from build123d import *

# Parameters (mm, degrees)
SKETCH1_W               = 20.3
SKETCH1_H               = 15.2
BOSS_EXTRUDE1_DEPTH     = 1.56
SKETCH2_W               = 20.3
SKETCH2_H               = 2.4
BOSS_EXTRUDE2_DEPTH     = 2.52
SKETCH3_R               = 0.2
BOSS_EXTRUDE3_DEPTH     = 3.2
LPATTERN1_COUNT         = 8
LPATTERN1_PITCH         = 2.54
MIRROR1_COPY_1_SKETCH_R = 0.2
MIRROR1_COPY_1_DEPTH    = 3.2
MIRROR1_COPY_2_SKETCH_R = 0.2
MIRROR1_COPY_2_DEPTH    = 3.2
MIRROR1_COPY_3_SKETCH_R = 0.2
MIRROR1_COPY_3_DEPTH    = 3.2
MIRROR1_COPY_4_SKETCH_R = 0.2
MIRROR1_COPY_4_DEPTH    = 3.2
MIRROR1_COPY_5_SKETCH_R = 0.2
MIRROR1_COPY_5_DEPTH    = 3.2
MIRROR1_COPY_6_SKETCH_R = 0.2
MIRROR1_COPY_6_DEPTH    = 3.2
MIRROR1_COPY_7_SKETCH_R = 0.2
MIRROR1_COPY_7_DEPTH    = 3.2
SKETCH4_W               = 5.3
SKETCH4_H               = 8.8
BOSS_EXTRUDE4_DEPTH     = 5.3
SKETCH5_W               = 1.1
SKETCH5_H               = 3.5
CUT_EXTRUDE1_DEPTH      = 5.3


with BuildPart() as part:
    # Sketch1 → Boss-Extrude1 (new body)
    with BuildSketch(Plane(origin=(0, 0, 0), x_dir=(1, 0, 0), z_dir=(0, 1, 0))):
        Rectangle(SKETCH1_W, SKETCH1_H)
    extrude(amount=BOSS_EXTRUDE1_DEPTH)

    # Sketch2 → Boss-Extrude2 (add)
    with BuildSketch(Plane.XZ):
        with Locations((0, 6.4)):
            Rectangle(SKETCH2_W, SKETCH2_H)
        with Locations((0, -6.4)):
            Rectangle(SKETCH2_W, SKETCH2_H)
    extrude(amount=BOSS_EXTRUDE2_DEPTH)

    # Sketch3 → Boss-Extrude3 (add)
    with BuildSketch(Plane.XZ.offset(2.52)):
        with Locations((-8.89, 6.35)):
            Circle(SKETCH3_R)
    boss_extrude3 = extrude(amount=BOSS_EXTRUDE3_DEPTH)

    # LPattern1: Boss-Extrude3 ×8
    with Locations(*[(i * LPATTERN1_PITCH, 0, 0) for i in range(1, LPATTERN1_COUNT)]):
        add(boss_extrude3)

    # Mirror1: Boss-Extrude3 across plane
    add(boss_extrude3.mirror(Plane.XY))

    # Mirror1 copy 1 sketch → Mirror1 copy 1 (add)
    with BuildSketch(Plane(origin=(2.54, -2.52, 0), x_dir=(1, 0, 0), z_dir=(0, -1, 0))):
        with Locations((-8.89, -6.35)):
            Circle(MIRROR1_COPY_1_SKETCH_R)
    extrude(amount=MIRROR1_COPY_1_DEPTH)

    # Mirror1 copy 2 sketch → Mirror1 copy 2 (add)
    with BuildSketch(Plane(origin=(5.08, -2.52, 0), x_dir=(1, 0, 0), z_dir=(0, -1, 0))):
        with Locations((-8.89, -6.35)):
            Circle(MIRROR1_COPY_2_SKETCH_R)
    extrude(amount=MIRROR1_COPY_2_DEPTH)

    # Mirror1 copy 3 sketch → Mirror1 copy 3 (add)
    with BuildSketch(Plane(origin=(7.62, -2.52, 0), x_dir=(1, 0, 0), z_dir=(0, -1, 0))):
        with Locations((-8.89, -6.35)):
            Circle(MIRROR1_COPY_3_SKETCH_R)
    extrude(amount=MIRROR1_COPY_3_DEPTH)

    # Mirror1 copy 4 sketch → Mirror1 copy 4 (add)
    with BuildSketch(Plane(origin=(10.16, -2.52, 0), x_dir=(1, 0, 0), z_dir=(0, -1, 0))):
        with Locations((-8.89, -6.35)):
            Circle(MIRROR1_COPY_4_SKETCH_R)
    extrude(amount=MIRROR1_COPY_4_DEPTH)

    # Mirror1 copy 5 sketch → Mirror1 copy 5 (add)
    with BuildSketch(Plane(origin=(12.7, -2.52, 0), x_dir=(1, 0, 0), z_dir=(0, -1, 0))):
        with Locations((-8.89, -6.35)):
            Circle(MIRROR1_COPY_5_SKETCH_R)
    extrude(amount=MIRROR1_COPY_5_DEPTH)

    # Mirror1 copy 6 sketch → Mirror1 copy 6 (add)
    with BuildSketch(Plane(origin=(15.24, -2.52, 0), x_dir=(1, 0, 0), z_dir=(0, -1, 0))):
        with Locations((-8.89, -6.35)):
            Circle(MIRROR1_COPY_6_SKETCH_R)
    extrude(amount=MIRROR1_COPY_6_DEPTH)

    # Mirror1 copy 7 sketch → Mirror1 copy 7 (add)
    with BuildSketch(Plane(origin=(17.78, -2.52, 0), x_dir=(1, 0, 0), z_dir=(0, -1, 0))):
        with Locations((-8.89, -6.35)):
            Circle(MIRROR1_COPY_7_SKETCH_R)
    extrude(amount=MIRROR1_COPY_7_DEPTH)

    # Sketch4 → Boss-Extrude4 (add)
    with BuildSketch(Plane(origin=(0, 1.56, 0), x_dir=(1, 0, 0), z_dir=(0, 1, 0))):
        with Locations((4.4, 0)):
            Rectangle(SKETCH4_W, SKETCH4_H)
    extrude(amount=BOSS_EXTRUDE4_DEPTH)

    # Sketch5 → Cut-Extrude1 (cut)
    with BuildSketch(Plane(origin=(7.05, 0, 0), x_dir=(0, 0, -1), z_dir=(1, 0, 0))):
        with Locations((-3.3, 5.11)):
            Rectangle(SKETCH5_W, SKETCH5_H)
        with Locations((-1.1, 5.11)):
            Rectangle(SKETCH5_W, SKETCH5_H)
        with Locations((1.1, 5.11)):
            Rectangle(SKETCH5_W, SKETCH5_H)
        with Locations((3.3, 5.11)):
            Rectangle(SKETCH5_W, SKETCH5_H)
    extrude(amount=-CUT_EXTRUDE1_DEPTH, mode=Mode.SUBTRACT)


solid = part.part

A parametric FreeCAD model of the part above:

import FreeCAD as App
import Part
import Sketcher

V = App.Vector


def add_polygon(sketch, points):
    """Adds a closed chain of lines whose ends are joined by coincident constraints."""
    first, n = sketch.GeometryCount, len(points)
    for a, b in zip(points, points[1:] + points[:1]):
        sketch.addGeometry(Part.LineSegment(App.Vector(*a, 0), App.Vector(*b, 0)), False)
    for i in range(n):
        sketch.addConstraint(Sketcher.Constraint("Coincident", first + i, 2, first + (i + 1) % n, 1))

doc = App.newDocument("Part")
body = doc.addObject("PartDesign::Body", "Body")

# Sketch on XZ plane
sketch1 = doc.addObject("Sketcher::SketchObject", "Sketch")
body.addObject(sketch1)
sketch1.AttachmentSupport = (doc.XZ_Plane, [""])
sketch1.MapMode = "FlatFace"
add_polygon(sketch1, [(-10, -8), (-10, 8), (10, 8), (10, -8)])  # lines 0-3
sketch1.addConstraint([
    Sketcher.Constraint("Vertical", 0),
    Sketcher.Constraint("Horizontal", 1),
    Sketcher.Constraint("Vertical", 2),
    Sketcher.Constraint("Horizontal", 3),
    Sketcher.Constraint("Symmetric", 0, 2, 2, 2, -1, 1),
    Sketcher.Constraint("DistanceX", 1, 1, 1, 2, 20.3),
    Sketcher.Constraint("DistanceY", 0, 1, 0, 2, 15.2),
])
pad1 = doc.addObject("PartDesign::Pad", "Pad")
body.addObject(pad1)
pad1.Profile = sketch1
pad1.Length = 1.56
pad1.Reversed = True

# Sketch on XZ plane
sketch2 = doc.addObject("Sketcher::SketchObject", "Sketch001")
body.addObject(sketch2)
sketch2.AttachmentSupport = (doc.XZ_Plane, [""])
sketch2.MapMode = "FlatFace"
add_polygon(sketch2, [(-10.2, 7.6), (-10.2, 5.2), (10.2, 5.2), (10.2, 7.6)])  # lines 0-3
add_polygon(sketch2, [(-10.2, -5.2), (-10.2, -7.6), (10.2, -7.6), (10.2, -5.2)])  # lines 4-7
sketch2.addConstraint([
    Sketcher.Constraint("Vertical", 0),
    Sketcher.Constraint("Horizontal", 1),
    Sketcher.Constraint("Vertical", 2),
    Sketcher.Constraint("Horizontal", 3),
    Sketcher.Constraint("Vertical", 4),
    Sketcher.Constraint("Horizontal", 5),
    Sketcher.Constraint("Vertical", 6),
    Sketcher.Constraint("Horizontal", 7),
    Sketcher.Constraint("Symmetric", 2, 2, 4, 2, -1, 1),
    Sketcher.Constraint("Symmetric", 0, 2, 6, 2, -1, 1),
    Sketcher.Constraint("Vertical", 3, 2, 4, 2),
    Sketcher.Constraint("DistanceX", 1, 1, 1, 2, 20.3),
    Sketcher.Constraint("DistanceY", 0, 2, 0, 1, 2.4),
    Sketcher.Constraint("DistanceY", -1, 1, 0, 2, 5.2),
])
pad2 = doc.addObject("PartDesign::Pad", "Pad001")
body.addObject(pad2)
pad2.Profile = sketch2
pad2.Length = 2.52

# Sketch on XZ plane
sketch3 = doc.addObject("Sketcher::SketchObject", "Sketch002")
body.addObject(sketch3)
sketch3.AttachmentSupport = (doc.XZ_Plane, [""])
sketch3.MapMode = "FlatFace"
sketch3.AttachmentOffset = App.Placement(V(0, 0, 2.52), App.Rotation())
sketch3.addGeometry(Part.Circle(V(-8.89, 6.35, 0), V(0, 0, 1), 0.2), False)
sketch3.addConstraint([
    Sketcher.Constraint("Diameter", 0, 0.4),
    Sketcher.Constraint("DistanceX", 0, 3, -1, 1, 8.89),
    Sketcher.Constraint("DistanceY", -1, 1, 0, 3, 6.35),
])
pad3 = doc.addObject("PartDesign::Pad", "Pad002")
body.addObject(pad3)
pad3.Profile = sketch3
pad3.Length = 3.2
doc.recompute()

linearpattern = doc.addObject("PartDesign::LinearPattern", "LinearPattern")
body.addObject(linearpattern)
linearpattern.Originals = [pad3]
linearpattern.Direction = (doc.X_Axis, [""])
linearpattern.Mode = "offset"
linearpattern.Offset = 2.54
linearpattern.Occurrences = 8
body.Tip = linearpattern
doc.recompute()

mirrored = doc.addObject("PartDesign::Mirrored", "Mirrored")
body.addObject(mirrored)
mirrored.Originals = [pad3]
mirrored.MirrorPlane = (doc.XY_Plane, [""])
body.Tip = mirrored

# Sketch on XZ plane
sketch4 = doc.addObject("Sketcher::SketchObject", "Sketch003")
body.addObject(sketch4)
sketch4.AttachmentSupport = (doc.XZ_Plane, [""])
sketch4.MapMode = "FlatFace"
sketch4.AttachmentOffset = App.Placement(V(0, 0, 2.52), App.Rotation())
sketch4.addGeometry(Part.Circle(V(-6.35, -6.35, 0), V(0, 0, 1), 0.2), False)
sketch4.addConstraint([
    Sketcher.Constraint("Diameter", 0, 0.4),
    Sketcher.Constraint("DistanceX", 0, 3, -1, 1, 6.35),
    Sketcher.Constraint("DistanceY", 0, 3, -1, 1, 6.35),
])
pad4 = doc.addObject("PartDesign::Pad", "Pad003")
body.addObject(pad4)
pad4.Profile = sketch4
pad4.Length = 3.2

# Sketch on XZ plane
sketch5 = doc.addObject("Sketcher::SketchObject", "Sketch004")
body.addObject(sketch5)
sketch5.AttachmentSupport = (doc.XZ_Plane, [""])
sketch5.MapMode = "FlatFace"
sketch5.AttachmentOffset = App.Placement(V(0, 0, 2.52), App.Rotation())
sketch5.addGeometry(Part.Circle(V(-3.81, -6.35, 0), V(0, 0, 1), 0.2), False)
sketch5.addConstraint([
    Sketcher.Constraint("Diameter", 0, 0.4),
    Sketcher.Constraint("DistanceX", 0, 3, -1, 1, 3.81),
    Sketcher.Constraint("DistanceY", 0, 3, -1, 1, 6.35),
])
pad5 = doc.addObject("PartDesign::Pad", "Pad004")
body.addObject(pad5)
pad5.Profile = sketch5
pad5.Length = 3.2

# Sketch on XZ plane
sketch6 = doc.addObject("Sketcher::SketchObject", "Sketch005")
body.addObject(sketch6)
sketch6.AttachmentSupport = (doc.XZ_Plane, [""])
sketch6.MapMode = "FlatFace"
sketch6.AttachmentOffset = App.Placement(V(0, 0, 2.52), App.Rotation())
sketch6.addGeometry(Part.Circle(V(-1.27, -6.35, 0), V(0, 0, 1), 0.2), False)
sketch6.addConstraint([
    Sketcher.Constraint("Diameter", 0, 0.4),
    Sketcher.Constraint("DistanceX", 0, 3, -1, 1, 1.27),
    Sketcher.Constraint("DistanceY", 0, 3, -1, 1, 6.35),
])
pad6 = doc.addObject("PartDesign::Pad", "Pad005")
body.addObject(pad6)
pad6.Profile = sketch6
pad6.Length = 3.2

# Sketch on XZ plane
sketch7 = doc.addObject("Sketcher::SketchObject", "Sketch006")
body.addObject(sketch7)
sketch7.AttachmentSupport = (doc.XZ_Plane, [""])
sketch7.MapMode = "FlatFace"
sketch7.AttachmentOffset = App.Placement(V(0, 0, 2.52), App.Rotation())
sketch7.addGeometry(Part.Circle(V(1.27, -6.35, 0), V(0, 0, 1), 0.2), False)
sketch7.addConstraint([
    Sketcher.Constraint("Diameter", 0, 0.4),
    Sketcher.Constraint("DistanceX", -1, 1, 0, 3, 1.27),
    Sketcher.Constraint("DistanceY", 0, 3, -1, 1, 6.35),
])
pad7 = doc.addObject("PartDesign::Pad", "Pad006")
body.addObject(pad7)
pad7.Profile = sketch7
pad7.Length = 3.2

# Sketch on XZ plane
sketch8 = doc.addObject("Sketcher::SketchObject", "Sketch007")
body.addObject(sketch8)
sketch8.AttachmentSupport = (doc.XZ_Plane, [""])
sketch8.MapMode = "FlatFace"
sketch8.AttachmentOffset = App.Placement(V(0, 0, 2.52), App.Rotation())
sketch8.addGeometry(Part.Circle(V(3.81, -6.35, 0), V(0, 0, 1), 0.2), False)
sketch8.addConstraint([
    Sketcher.Constraint("Diameter", 0, 0.4),
    Sketcher.Constraint("DistanceX", -1, 1, 0, 3, 3.81),
    Sketcher.Constraint("DistanceY", 0, 3, -1, 1, 6.35),
])
pad8 = doc.addObject("PartDesign::Pad", "Pad007")
body.addObject(pad8)
pad8.Profile = sketch8
pad8.Length = 3.2

# Sketch on XZ plane
sketch9 = doc.addObject("Sketcher::SketchObject", "Sketch008")
body.addObject(sketch9)
sketch9.AttachmentSupport = (doc.XZ_Plane, [""])
sketch9.MapMode = "FlatFace"
sketch9.AttachmentOffset = App.Placement(V(0, 0, 2.52), App.Rotation())
sketch9.addGeometry(Part.Circle(V(6.35, -6.35, 0), V(0, 0, 1), 0.2), False)
sketch9.addConstraint([
    Sketcher.Constraint("Diameter", 0, 0.4),
    Sketcher.Constraint("DistanceX", -1, 1, 0, 3, 6.35),
    Sketcher.Constraint("DistanceY", 0, 3, -1, 1, 6.35),
])
pad9 = doc.addObject("PartDesign::Pad", "Pad008")
body.addObject(pad9)
pad9.Profile = sketch9
pad9.Length = 3.2

# Sketch on XZ plane
sketch10 = doc.addObject("Sketcher::SketchObject", "Sketch009")
body.addObject(sketch10)
sketch10.AttachmentSupport = (doc.XZ_Plane, [""])
sketch10.MapMode = "FlatFace"
sketch10.AttachmentOffset = App.Placement(V(0, 0, 2.52), App.Rotation())
sketch10.addGeometry(Part.Circle(V(8.89, -6.35, 0), V(0, 0, 1), 0.2), False)
sketch10.addConstraint([
    Sketcher.Constraint("Diameter", 0, 0.4),
    Sketcher.Constraint("DistanceX", -1, 1, 0, 3, 8.89),
    Sketcher.Constraint("DistanceY", 0, 3, -1, 1, 6.35),
])
pad10 = doc.addObject("PartDesign::Pad", "Pad009")
body.addObject(pad10)
pad10.Profile = sketch10
pad10.Length = 3.2

# Sketch on XZ plane
sketch11 = doc.addObject("Sketcher::SketchObject", "Sketch010")
body.addObject(sketch11)
sketch11.AttachmentSupport = (doc.XZ_Plane, [""])
sketch11.MapMode = "FlatFace"
sketch11.AttachmentOffset = App.Placement(V(0, 0, -1.56), App.Rotation())
add_polygon(sketch11, [(2, -4), (2, 4), (7, 4), (7, -4)])  # lines 0-3
sketch11.addConstraint([
    Sketcher.Constraint("Vertical", 0),
    Sketcher.Constraint("Horizontal", 1),
    Sketcher.Constraint("Vertical", 2),
    Sketcher.Constraint("Horizontal", 3),
    Sketcher.Constraint("DistanceX", 1, 1, 1, 2, 5.3),
    Sketcher.Constraint("DistanceY", 0, 1, 0, 2, 8.8),
    Sketcher.Constraint("DistanceY", -1, 1, 0, 2, 4.4),
    Sketcher.Constraint("DistanceX", -1, 1, 0, 2, 1.75),
])
pad11 = doc.addObject("PartDesign::Pad", "Pad010")
body.addObject(pad11)
pad11.Profile = sketch11
pad11.Length = 5.3
pad11.Reversed = True

# Sketch on YZ plane
sketch12 = doc.addObject("Sketcher::SketchObject", "Sketch011")
body.addObject(sketch12)
sketch12.AttachmentSupport = (doc.YZ_Plane, [""])
sketch12.MapMode = "FlatFace"
sketch12.AttachmentOffset = App.Placement(V(0, 0, 7.05), App.Rotation())
add_polygon(sketch12, [(6.9, 3.9), (3.4, 3.9), (3.4, 2.8), (6.9, 2.8)])  # lines 0-3
add_polygon(sketch12, [(6.9, 1.6), (3.4, 1.6), (3.4, 0.6), (6.9, 0.6)])  # lines 4-7
add_polygon(sketch12, [(6.9, -0.6), (3.4, -0.6), (3.4, -1.6), (6.9, -1.6)])  # lines 8-11
add_polygon(sketch12, [(6.9, -2.8), (3.4, -2.8), (3.4, -3.9), (6.9, -3.9)])  # lines 12-15
sketch12.addConstraint([
    Sketcher.Constraint("Horizontal", 0),
    Sketcher.Constraint("Vertical", 1),
    Sketcher.Constraint("Horizontal", 2),
    Sketcher.Constraint("Vertical", 3),
    Sketcher.Constraint("Horizontal", 4),
    Sketcher.Constraint("Vertical", 5),
    Sketcher.Constraint("Horizontal", 6),
    Sketcher.Constraint("Vertical", 7),
    Sketcher.Constraint("Horizontal", 8),
    Sketcher.Constraint("Vertical", 9),
    Sketcher.Constraint("Horizontal", 10),
    Sketcher.Constraint("Vertical", 11),
    Sketcher.Constraint("Horizontal", 12),
    Sketcher.Constraint("Vertical", 13),
    Sketcher.Constraint("Horizontal", 14),
    Sketcher.Constraint("Vertical", 15),
    Sketcher.Constraint("Symmetric", 5, 2, 8, 2, -1),
    Sketcher.Constraint("Symmetric", 7, 2, 10, 2, -1),
    Sketcher.Constraint("Symmetric", 1, 2, 12, 2, -1),
    Sketcher.Constraint("Symmetric", 3, 2, 14, 2, -1),
    Sketcher.Constraint("Vertical", 1, 2, 4, 2),
    Sketcher.Constraint("Vertical", 3, 2, 6, 2),
    Sketcher.Constraint("Equal", 3, 5),
    Sketcher.Constraint("DistanceX", 0, 2, 0, 1, 3.5),
    Sketcher.Constraint("DistanceY", 1, 2, 1, 1, 1.1),
    Sketcher.Constraint("DistanceY", 4, 2, 1, 2, 1.1),
    Sketcher.Constraint("DistanceY", 8, 2, 5, 2, 1.1),
    Sketcher.Constraint("DistanceX", -1, 1, 0, 2, 3.36),
])
pocket1 = doc.addObject("PartDesign::Pocket", "Pocket")
body.addObject(pocket1)
pocket1.Profile = sketch12
pocket1.Length = 5.3

doc.recompute()
